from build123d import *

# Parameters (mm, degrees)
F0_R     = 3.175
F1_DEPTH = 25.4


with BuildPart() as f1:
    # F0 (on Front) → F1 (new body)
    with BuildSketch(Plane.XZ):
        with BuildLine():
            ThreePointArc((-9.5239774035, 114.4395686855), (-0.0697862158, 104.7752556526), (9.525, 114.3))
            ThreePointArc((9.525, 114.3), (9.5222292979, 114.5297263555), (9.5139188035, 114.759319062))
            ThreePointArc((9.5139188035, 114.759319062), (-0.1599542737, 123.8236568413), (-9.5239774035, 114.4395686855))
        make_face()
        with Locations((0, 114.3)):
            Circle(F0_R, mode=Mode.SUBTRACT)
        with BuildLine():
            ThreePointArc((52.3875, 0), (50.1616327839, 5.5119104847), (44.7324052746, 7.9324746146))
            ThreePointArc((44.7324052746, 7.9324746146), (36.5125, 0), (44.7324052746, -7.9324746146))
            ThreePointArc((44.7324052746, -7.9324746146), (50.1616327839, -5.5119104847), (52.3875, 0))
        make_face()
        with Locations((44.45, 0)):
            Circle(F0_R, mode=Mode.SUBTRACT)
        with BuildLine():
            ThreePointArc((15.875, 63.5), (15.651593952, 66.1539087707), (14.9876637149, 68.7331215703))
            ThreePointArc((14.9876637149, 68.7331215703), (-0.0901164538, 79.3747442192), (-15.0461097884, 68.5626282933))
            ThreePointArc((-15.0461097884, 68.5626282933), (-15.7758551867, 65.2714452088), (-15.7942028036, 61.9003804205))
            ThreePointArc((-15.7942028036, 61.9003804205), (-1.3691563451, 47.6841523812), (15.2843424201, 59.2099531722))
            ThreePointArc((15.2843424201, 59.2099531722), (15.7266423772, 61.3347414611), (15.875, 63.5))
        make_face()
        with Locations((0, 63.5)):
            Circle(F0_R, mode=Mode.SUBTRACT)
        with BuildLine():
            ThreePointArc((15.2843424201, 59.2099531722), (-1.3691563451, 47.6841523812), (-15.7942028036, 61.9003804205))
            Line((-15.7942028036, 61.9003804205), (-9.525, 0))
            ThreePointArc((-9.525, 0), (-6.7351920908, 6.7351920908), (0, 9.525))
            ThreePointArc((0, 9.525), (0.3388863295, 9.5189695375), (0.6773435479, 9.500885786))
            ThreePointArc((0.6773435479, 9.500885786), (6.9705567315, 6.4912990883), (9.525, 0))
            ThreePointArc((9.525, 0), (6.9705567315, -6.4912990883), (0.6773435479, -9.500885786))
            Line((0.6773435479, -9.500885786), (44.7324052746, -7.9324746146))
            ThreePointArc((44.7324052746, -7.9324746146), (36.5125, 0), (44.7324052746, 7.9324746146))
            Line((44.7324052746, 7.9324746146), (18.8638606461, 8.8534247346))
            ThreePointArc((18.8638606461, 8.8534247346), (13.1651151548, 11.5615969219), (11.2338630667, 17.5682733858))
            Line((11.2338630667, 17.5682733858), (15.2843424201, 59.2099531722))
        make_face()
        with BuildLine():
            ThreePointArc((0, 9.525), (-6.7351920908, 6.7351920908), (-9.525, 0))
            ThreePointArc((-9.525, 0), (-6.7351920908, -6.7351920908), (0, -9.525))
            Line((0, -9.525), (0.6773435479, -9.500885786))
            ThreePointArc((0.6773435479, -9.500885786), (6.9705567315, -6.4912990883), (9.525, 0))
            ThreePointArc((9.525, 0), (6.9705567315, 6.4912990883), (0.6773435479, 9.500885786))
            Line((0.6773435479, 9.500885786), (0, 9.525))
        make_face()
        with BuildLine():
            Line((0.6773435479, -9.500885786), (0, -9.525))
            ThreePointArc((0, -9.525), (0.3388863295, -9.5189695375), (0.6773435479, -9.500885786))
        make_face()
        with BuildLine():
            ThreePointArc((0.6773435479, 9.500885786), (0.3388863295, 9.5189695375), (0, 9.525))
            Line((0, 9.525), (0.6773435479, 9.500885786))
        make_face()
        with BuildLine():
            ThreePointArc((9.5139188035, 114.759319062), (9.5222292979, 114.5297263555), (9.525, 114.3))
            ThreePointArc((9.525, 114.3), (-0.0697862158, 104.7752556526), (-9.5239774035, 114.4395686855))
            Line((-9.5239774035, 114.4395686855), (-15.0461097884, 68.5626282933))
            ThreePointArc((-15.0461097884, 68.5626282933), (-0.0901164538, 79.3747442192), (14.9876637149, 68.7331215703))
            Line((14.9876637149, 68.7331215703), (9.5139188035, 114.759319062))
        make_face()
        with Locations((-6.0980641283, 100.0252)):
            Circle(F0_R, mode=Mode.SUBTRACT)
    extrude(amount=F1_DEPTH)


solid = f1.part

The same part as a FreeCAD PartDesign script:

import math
import FreeCAD as App
import Part
import Sketcher
Q = App.Units.Quantity

doc = App.newDocument("Part")
body = doc.addObject("PartDesign::Body", "Body")

# Sketch on XZ plane
sketch1 = body.newObject("Sketcher::SketchObject", "Sketch")
sketch1.AttachmentSupport = (doc.getObject("XZ_Plane"), [""])
sketch1.MapMode = "FlatFace"
sketch1.addGeometry([
    Part.ArcOfCircle(Part.Circle(App.Vector(0, 114.3, 0), App.Vector(0, 0, 1), 9.5), math.radians(3), math.radians(179)),  # 0
    Part.LineSegment(App.Vector(-9.5, 114.4, 0), App.Vector(-15, 68.6, 0)),  # 1
    Part.ArcOfCircle(Part.Circle(App.Vector(0, 63.5, 0), App.Vector(0, 0, 1), 15.9), math.radians(161), math.radians(186)),  # 2
    Part.LineSegment(App.Vector(-15.8, 61.9, 0), App.Vector(-9.5, 0, 0)),  # 3
    Part.ArcOfCircle(Part.Circle(App.Vector(0, 0, 0), App.Vector(0, 0, 1), 9.5), math.radians(180), math.radians(270)),  # 4
    Part.ArcOfCircle(Part.Circle(App.Vector(0, 0, 0), App.Vector(0, 0, 1), 9.5), math.radians(-90), math.radians(-85.92)),  # 5
    Part.LineSegment(App.Vector(0.7, -9.5, 0), App.Vector(44.7, -7.9, 0)),  # 6
    Part.ArcOfCircle(Part.Circle(App.Vector(44.5, 0, 0), App.Vector(0, 0, 1), 7.9), math.radians(-88), math.radians(0)),  # 7
    Part.ArcOfCircle(Part.Circle(App.Vector(44.5, 0, 0), App.Vector(0, 0, 1), 7.9), math.radians(0), math.radians(88)),  # 8
    Part.LineSegment(App.Vector(44.7, 7.9, 0), App.Vector(18.9, 8.9, 0)),  # 9
    Part.ArcOfCircle(Part.Circle(App.Vector(19.1, 16.8, 0), App.Vector(0, 0, 1), 8), math.radians(174), math.radians(268)),  # 10
    Part.LineSegment(App.Vector(11.2, 17.6, 0), App.Vector(15.3, 59.2, 0)),  # 11
    Part.ArcOfCircle(Part.Circle(App.Vector(0, 63.5, 0), App.Vector(0, 0, 1), 15.9), math.radians(-15.68), math.radians(0)),  # 12
    Part.ArcOfCircle(Part.Circle(App.Vector(0, 63.5, 0), App.Vector(0, 0, 1), 15.9), math.radians(0), math.radians(19.25)),  # 13
    Part.LineSegment(App.Vector(15, 68.7, 0), App.Vector(9.5, 114.8, 0)),  # 14
    Part.Circle(App.Vector(44.5, 0, 0), App.Vector(0, 0, 1), 3.2),  # 15
    Part.Circle(App.Vector(0, 63.5, 0), App.Vector(0, 0, 1), 3.2),  # 16
    Part.Circle(App.Vector(-6.1, 100, 0), App.Vector(0, 0, 1), 3.2),  # 17
    Part.Circle(App.Vector(0, 114.3, 0), App.Vector(0, 0, 1), 3.2),  # 18
], False)
sketch1.addConstraint([
    Sketcher.Constraint("Coincident", 0, 2, 1, 1),
    Sketcher.Constraint("Coincident", 1, 2, 2, 1),
    Sketcher.Constraint("Tangent", 2, 2, 3, 1),
    Sketcher.Constraint("Coincident", 3, 2, 4, 1),
    Sketcher.Constraint("Tangent", 4, 2, 5, 1),
    Sketcher.Constraint("Coincident", 5, 2, 6, 1),
    Sketcher.Constraint("Tangent", 6, 2, 7, 1),
    Sketcher.Constraint("Tangent", 7, 2, 8, 1),
    Sketcher.Constraint("Tangent", 8, 2, 9, 1),
    Sketcher.Constraint("Tangent", 9, 2, 10, 2),
    Sketcher.Constraint("Tangent", 10, 1, 11, 1),
    Sketcher.Constraint("Coincident", 11, 2, 12, 1),
    Sketcher.Constraint("Tangent", 12, 2, 13, 1),
    Sketcher.Constraint("Coincident", 13, 2, 14, 1),
    Sketcher.Constraint("Coincident", 14, 2, 0, 1),
    Sketcher.Constraint("Coincident", 4, 3, -1, 1),
    Sketcher.Constraint("Coincident", 12, 3, 2, 3),
    Sketcher.Constraint("Coincident", 15, 3, 7, 3),
    Sketcher.Constraint("Coincident", 16, 3, 2, 3),
    Sketcher.Constraint("Coincident", 18, 3, 0, 3),
    Sketcher.Constraint("Equal", 0, 4),
    Sketcher.Constraint("Equal", 4, 5),
    Sketcher.Constraint("Equal", 7, 8),
    Sketcher.Constraint("Equal", 2, 12),
    Sketcher.Constraint("Equal", 12, 13),
    Sketcher.Constraint("Equal", 15, 16),
    Sketcher.Constraint("Equal", 16, 17),
    Sketcher.Constraint("Equal", 17, 18),
    Sketcher.Constraint("Symmetric", 6, 2, 8, 2, -1),
    Sketcher.Constraint("PointOnObject", 0, 3, -2),
    Sketcher.Constraint("PointOnObject", 2, 3, -2),
    Sketcher.Constraint("PointOnObject", 3, 2, -1),
    Sketcher.Constraint("PointOnObject", 4, 2, -2),
    Sketcher.Constraint("PointOnObject", 7, 2, -1),
    Sketcher.Constraint("Horizontal", 16, 3, 12, 2),
    Sketcher.Constraint("Diameter", 15, Q("0.25 in")),
    Sketcher.Constraint("Radius", 0, Q("0.375 in")),
    Sketcher.Constraint("Radius", 2, Q("0.625 in")),
    Sketcher.Constraint("Radius", 7, Q("0.3125 in")),
    Sketcher.Constraint("Radius", 10, Q("0.313 in")),
    Sketcher.Constraint("DistanceY", 2, 3, 0, 3, Q("2 in")),
    Sketcher.Constraint("DistanceY", -1, 1, 0, 3, Q("4.5 in")),
    Sketcher.Constraint("DistanceX", -1, 1, 7, 3, Q("1.75 in")),
    Sketcher.Constraint("DistanceY", -1, 1, 17, 3, Q("3.938 in")),
    Sketcher.Constraint("Distance", 1, Q("46.20809 mm")),
    Sketcher.Constraint("Distance", 6, Q("44.082972 mm")),
    Sketcher.Constraint("Distance", 11, Q("41.838211 mm")),
    Sketcher.Constraint("Distance", 14, Q("46.350542 mm")),
    Sketcher.Constraint("DistanceY", -1, 1, 10, 3, Q("16.798591 mm")),
    Sketcher.Constraint("DistanceY", -1, 1, 0, 2, Q("114.439569 mm")),
    Sketcher.Constraint("DistanceY", -1, 1, 13, 2, Q("68.733122 mm")),
    Sketcher.Constraint("DistanceX", 17, 3, -1, 1, Q("6.098064 mm")),
])
pad1 = body.newObject("PartDesign::Pad", "Pad")
pad1.Profile = sketch1
pad1.Length = Q("1 in")

doc.recompute()
